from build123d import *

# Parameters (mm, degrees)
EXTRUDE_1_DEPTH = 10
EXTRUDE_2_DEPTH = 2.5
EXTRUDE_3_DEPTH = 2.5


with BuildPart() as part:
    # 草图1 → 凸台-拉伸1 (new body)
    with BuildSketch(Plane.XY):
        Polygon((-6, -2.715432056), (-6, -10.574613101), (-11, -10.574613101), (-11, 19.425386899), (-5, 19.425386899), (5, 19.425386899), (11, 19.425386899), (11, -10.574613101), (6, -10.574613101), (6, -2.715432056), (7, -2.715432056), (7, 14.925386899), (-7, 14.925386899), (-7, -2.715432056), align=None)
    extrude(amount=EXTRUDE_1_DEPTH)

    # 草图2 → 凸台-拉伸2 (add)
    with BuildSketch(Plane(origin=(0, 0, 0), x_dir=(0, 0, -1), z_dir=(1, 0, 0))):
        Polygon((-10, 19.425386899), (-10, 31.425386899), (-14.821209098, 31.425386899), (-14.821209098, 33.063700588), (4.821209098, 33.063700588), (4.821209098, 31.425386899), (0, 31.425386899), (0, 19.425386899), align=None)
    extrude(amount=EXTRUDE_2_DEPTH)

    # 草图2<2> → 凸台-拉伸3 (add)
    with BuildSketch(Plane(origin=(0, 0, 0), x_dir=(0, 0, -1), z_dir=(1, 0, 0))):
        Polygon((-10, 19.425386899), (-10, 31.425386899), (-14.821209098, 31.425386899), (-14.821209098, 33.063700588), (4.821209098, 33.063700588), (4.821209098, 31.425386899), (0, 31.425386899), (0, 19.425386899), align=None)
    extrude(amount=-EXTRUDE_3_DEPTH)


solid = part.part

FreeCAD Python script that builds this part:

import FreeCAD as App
import Part
import Sketcher
from FreeCAD import Vector

doc = App.newDocument("Part")
body = doc.addObject("PartDesign::Body", "Body")

sketch1 = body.newObject("Sketcher::SketchObject", "Sketch")
sketch1.AttachmentSupport = (doc.getObject("XY_Plane"), [""])
sketch1.MapMode = "FlatFace"
sketch1.addGeometry(Part.LineSegment(Vector(-6, -10.6, 0), Vector(-6, -2.7, 0)), False)
sketch1.addGeometry(Part.LineSegment(Vector(-6, -2.7, 0), Vector(-7, -2.7, 0)), False)
sketch1.addGeometry(Part.LineSegment(Vector(-7, -2.7, 0), Vector(-7, 14.9, 0)), False)
sketch1.addGeometry(Part.LineSegment(Vector(-7, 14.9, 0), Vector(7, 14.9, 0)), False)
sketch1.addGeometry(Part.LineSegment(Vector(7, 14.9, 0), Vector(7, -2.7, 0)), False)
sketch1.addGeometry(Part.LineSegment(Vector(7, -2.7, 0), Vector(6, -2.7, 0)), False)
sketch1.addGeometry(Part.LineSegment(Vector(6, -2.7, 0), Vector(6, -10.6, 0)), False)
sketch1.addGeometry(Part.LineSegment(Vector(6, -10.6, 0), Vector(11, -10.6, 0)), False)
sketch1.addGeometry(Part.LineSegment(Vector(11, -10.6, 0), Vector(11, 19.4, 0)), False)
sketch1.addGeometry(Part.LineSegment(Vector(11, 19.4, 0), Vector(-11, 19.4, 0)), False)
sketch1.addGeometry(Part.LineSegment(Vector(-11, 19.4, 0), Vector(-11, -10.6, 0)), False)
sketch1.addGeometry(Part.LineSegment(Vector(-11, -10.6, 0), Vector(-6, -10.6, 0)), False)
sketch1.addConstraint(Sketcher.Constraint("Coincident", 0, 2, 1, 1))
sketch1.addConstraint(Sketcher.Constraint("Coincident", 1, 2, 2, 1))
sketch1.addConstraint(Sketcher.Constraint("Coincident", 2, 2, 3, 1))
sketch1.addConstraint(Sketcher.Constraint("Coincident", 3, 2, 4, 1))
sketch1.addConstraint(Sketcher.Constraint("Coincident", 4, 2, 5, 1))
sketch1.addConstraint(Sketcher.Constraint("Coincident", 5, 2, 6, 1))
sketch1.addConstraint(Sketcher.Constraint("Coincident", 6, 2, 7, 1))
sketch1.addConstraint(Sketcher.Constraint("Coincident", 7, 2, 8, 1))
sketch1.addConstraint(Sketcher.Constraint("Coincident", 8, 2, 9, 1))
sketch1.addConstraint(Sketcher.Constraint("Coincident", 9, 2, 10, 1))
sketch1.addConstraint(Sketcher.Constraint("Coincident", 10, 2, 11, 1))
sketch1.addConstraint(Sketcher.Constraint("Coincident", 11, 2, 0, 1))
sketch1.addConstraint(Sketcher.Constraint("Vertical", 0))
sketch1.addConstraint(Sketcher.Constraint("Horizontal", 1))
sketch1.addConstraint(Sketcher.Constraint("Vertical", 2))
sketch1.addConstraint(Sketcher.Constraint("Horizontal", 3))
sketch1.addConstraint(Sketcher.Constraint("Vertical", 4))
sketch1.addConstraint(Sketcher.Constraint("Horizontal", 5))
sketch1.addConstraint(Sketcher.Constraint("Vertical", 6))
sketch1.addConstraint(Sketcher.Constraint("Horizontal", 7))
sketch1.addConstraint(Sketcher.Constraint("Vertical", 8))
sketch1.addConstraint(Sketcher.Constraint("Horizontal", 9))
sketch1.addConstraint(Sketcher.Constraint("Vertical", 10))
sketch1.addConstraint(Sketcher.Constraint("Horizontal", 11))
sketch1.addConstraint(Sketcher.Constraint("Symmetric", 1, 2, 4, 2, -2))
sketch1.addConstraint(Sketcher.Constraint("Symmetric", 7, 2, 10, 2, -2))
sketch1.addConstraint(Sketcher.Constraint("Equal", 1, 5))
sketch1.addConstraint(Sketcher.Constraint("DistanceX", 1, 2, 1, 1, 1.0))
sketch1.addConstraint(Sketcher.Constraint("DistanceX", 3, 1, 3, 2, 14.0))
sketch1.addConstraint(Sketcher.Constraint("DistanceX", 7, 1, 7, 2, 5.0))
sketch1.addConstraint(Sketcher.Constraint("DistanceY", 8, 1, 8, 2, 30.0))
sketch1.addConstraint(Sketcher.Constraint("DistanceY", 6, 2, 3, 2, 25.5))
sketch1.addConstraint(Sketcher.Constraint("DistanceY", 0, 1, 0, 2, 7.859181))
sketch1.addConstraint(Sketcher.Constraint("DistanceY", 0, 2, -1, 1, 2.715432))
pad1 = body.newObject("PartDesign::Pad", "Pad")
pad1.Profile = sketch1
pad1.Length = 10

sketch2 = body.newObject("Sketcher::SketchObject", "Sketch001")
sketch2.AttachmentSupport = (doc.getObject("YZ_Plane"), [""])
sketch2.MapMode = "FlatFace"
sketch2.addGeometry(Part.LineSegment(Vector(31.4, 10, 0), Vector(19.4, 10, 0)), False)
sketch2.addGeometry(Part.LineSegment(Vector(19.4, 10, 0), Vector(19.4, 0, 0)), False)
sketch2.addGeometry(Part.LineSegment(Vector(19.4, 0, 0), Vector(31.4, 0, 0)), False)
sketch2.addGeometry(Part.LineSegment(Vector(31.4, 0, 0), Vector(31.4, -4.8, 0)), False)
sketch2.addGeometry(Part.LineSegment(Vector(31.4, -4.8, 0), Vector(33.1, -4.8, 0)), False)
sketch2.addGeometry(Part.LineSegment(Vector(33.1, -4.8, 0), Vector(33.1, 14.8, 0)), False)
sketch2.addGeometry(Part.LineSegment(Vector(33.1, 14.8, 0), Vector(31.4, 14.8, 0)), False)
sketch2.addGeometry(Part.LineSegment(Vector(31.4, 14.8, 0), Vector(31.4, 10, 0)), False)
sketch2.addConstraint(Sketcher.Constraint("Coincident", 0, 2, 1, 1))
sketch2.addConstraint(Sketcher.Constraint("Coincident", 1, 2, 2, 1))
sketch2.addConstraint(Sketcher.Constraint("Coincident", 2, 2, 3, 1))
sketch2.addConstraint(Sketcher.Constraint("Coincident", 3, 2, 4, 1))
sketch2.addConstraint(Sketcher.Constraint("Coincident", 4, 2, 5, 1))
sketch2.addConstraint(Sketcher.Constraint("Coincident", 5, 2, 6, 1))
sketch2.addConstraint(Sketcher.Constraint("Coincident", 6, 2, 7, 1))
sketch2.addConstraint(Sketcher.Constraint("Coincident", 7, 2, 0, 1))
sketch2.addConstraint(Sketcher.Constraint("Horizontal", 0))
sketch2.addConstraint(Sketcher.Constraint("Vertical", 1))
sketch2.addConstraint(Sketcher.Constraint("Horizontal", 2))
sketch2.addConstraint(Sketcher.Constraint("Vertical", 3))
sketch2.addConstraint(Sketcher.Constraint("Horizontal", 4))
sketch2.addConstraint(Sketcher.Constraint("Vertical", 5))
sketch2.addConstraint(Sketcher.Constraint("Horizontal", 6))
sketch2.addConstraint(Sketcher.Constraint("Vertical", 7))
sketch2.addConstraint(Sketcher.Constraint("PointOnObject", 1, 2, -1))
sketch2.addConstraint(Sketcher.Constraint("Vertical", 3, 2, 6, 2))
sketch2.addConstraint(Sketcher.Constraint("Equal", 3, 7))
sketch2.addConstraint(Sketcher.Constraint("DistanceX", 0, 2, 0, 1, 12.0))
sketch2.addConstraint(Sketcher.Constraint("DistanceY", 1, 2, 1, 1, 10.0))
sketch2.addConstraint(Sketcher.Constraint("DistanceY", 3, 2, 3, 1, 4.821209))
sketch2.addConstraint(Sketcher.Constraint("DistanceX", -1, 1, 4, 2, 33.063701))
sketch2.addConstraint(Sketcher.Constraint("DistanceX", 4, 1, 4, 2, 1.638314))
pad2 = body.newObject("PartDesign::Pad", "Pad001")
pad2.Profile = sketch2
pad2.Length = 2.5

sketch3 = body.newObject("Sketcher::SketchObject", "Sketch002")
sketch3.AttachmentSupport = (doc.getObject("YZ_Plane"), [""])
sketch3.MapMode = "FlatFace"
sketch3.addGeometry(Part.LineSegment(Vector(31.4, 10, 0), Vector(19.4, 10, 0)), False)
sketch3.addGeometry(Part.LineSegment(Vector(19.4, 10, 0), Vector(19.4, 0, 0)), False)
sketch3.addGeometry(Part.LineSegment(Vector(19.4, 0, 0), Vector(31.4, 0, 0)), False)
sketch3.addGeometry(Part.LineSegment(Vector(31.4, 0, 0), Vector(31.4, -4.8, 0)), False)
sketch3.addGeometry(Part.LineSegment(Vector(31.4, -4.8, 0), Vector(33.1, -4.8, 0)), False)
sketch3.addGeometry(Part.LineSegment(Vector(33.1, -4.8, 0), Vector(33.1, 14.8, 0)), False)
sketch3.addGeometry(Part.LineSegment(Vector(33.1, 14.8, 0), Vector(31.4, 14.8, 0)), False)
sketch3.addGeometry(Part.LineSegment(Vector(31.4, 14.8, 0), Vector(31.4, 10, 0)), False)
sketch3.addConstraint(Sketcher.Constraint("Coincident", 0, 2, 1, 1))
sketch3.addConstraint(Sketcher.Constraint("Coincident", 1, 2, 2, 1))
sketch3.addConstraint(Sketcher.Constraint("Coincident", 2, 2, 3, 1))
sketch3.addConstraint(Sketcher.Constraint("Coincident", 3, 2, 4, 1))
sketch3.addConstraint(Sketcher.Constraint("Coincident", 4, 2, 5, 1))
sketch3.addConstraint(Sketcher.Constraint("Coincident", 5, 2, 6, 1))
sketch3.addConstraint(Sketcher.Constraint("Coincident", 6, 2, 7, 1))
sketch3.addConstraint(Sketcher.Constraint("Coincident", 7, 2, 0, 1))
sketch3.addConstraint(Sketcher.Constraint("Horizontal", 0))
sketch3.addConstraint(Sketcher.Constraint("Vertical", 1))
sketch3.addConstraint(Sketcher.Constraint("Horizontal", 2))
sketch3.addConstraint(Sketcher.Constraint("Vertical", 3))
sketch3.addConstraint(Sketcher.Constraint("Horizontal", 4))
sketch3.addConstraint(Sketcher.Constraint("Vertical", 5))
sketch3.addConstraint(Sketcher.Constraint("Horizontal", 6))
sketch3.addConstraint(Sketcher.Constraint("Vertical", 7))
sketch3.addConstraint(Sketcher.Constraint("PointOnObject", 1, 2, -1))
sketch3.addConstraint(Sketcher.Constraint("Vertical", 3, 2, 6, 2))
sketch3.addConstraint(Sketcher.Constraint("Equal", 3, 7))
sketch3.addConstraint(Sketcher.Constraint("DistanceX", 0, 2, 0, 1, 12.0))
sketch3.addConstraint(Sketcher.Constraint("DistanceY", 1, 2, 1, 1, 10.0))
sketch3.addConstraint(Sketcher.Constraint("DistanceY", 3, 2, 3, 1, 4.821209))
sketch3.addConstraint(Sketcher.Constraint("DistanceX", -1, 1, 4, 2, 33.063701))
sketch3.addConstraint(Sketcher.Constraint("DistanceX", 4, 1, 4, 2, 1.638314))
pad3 = body.newObject("PartDesign::Pad", "Pad002")
pad3.Profile = sketch3
pad3.Length = 2.5
pad3.Reversed = True

doc.recompute()
